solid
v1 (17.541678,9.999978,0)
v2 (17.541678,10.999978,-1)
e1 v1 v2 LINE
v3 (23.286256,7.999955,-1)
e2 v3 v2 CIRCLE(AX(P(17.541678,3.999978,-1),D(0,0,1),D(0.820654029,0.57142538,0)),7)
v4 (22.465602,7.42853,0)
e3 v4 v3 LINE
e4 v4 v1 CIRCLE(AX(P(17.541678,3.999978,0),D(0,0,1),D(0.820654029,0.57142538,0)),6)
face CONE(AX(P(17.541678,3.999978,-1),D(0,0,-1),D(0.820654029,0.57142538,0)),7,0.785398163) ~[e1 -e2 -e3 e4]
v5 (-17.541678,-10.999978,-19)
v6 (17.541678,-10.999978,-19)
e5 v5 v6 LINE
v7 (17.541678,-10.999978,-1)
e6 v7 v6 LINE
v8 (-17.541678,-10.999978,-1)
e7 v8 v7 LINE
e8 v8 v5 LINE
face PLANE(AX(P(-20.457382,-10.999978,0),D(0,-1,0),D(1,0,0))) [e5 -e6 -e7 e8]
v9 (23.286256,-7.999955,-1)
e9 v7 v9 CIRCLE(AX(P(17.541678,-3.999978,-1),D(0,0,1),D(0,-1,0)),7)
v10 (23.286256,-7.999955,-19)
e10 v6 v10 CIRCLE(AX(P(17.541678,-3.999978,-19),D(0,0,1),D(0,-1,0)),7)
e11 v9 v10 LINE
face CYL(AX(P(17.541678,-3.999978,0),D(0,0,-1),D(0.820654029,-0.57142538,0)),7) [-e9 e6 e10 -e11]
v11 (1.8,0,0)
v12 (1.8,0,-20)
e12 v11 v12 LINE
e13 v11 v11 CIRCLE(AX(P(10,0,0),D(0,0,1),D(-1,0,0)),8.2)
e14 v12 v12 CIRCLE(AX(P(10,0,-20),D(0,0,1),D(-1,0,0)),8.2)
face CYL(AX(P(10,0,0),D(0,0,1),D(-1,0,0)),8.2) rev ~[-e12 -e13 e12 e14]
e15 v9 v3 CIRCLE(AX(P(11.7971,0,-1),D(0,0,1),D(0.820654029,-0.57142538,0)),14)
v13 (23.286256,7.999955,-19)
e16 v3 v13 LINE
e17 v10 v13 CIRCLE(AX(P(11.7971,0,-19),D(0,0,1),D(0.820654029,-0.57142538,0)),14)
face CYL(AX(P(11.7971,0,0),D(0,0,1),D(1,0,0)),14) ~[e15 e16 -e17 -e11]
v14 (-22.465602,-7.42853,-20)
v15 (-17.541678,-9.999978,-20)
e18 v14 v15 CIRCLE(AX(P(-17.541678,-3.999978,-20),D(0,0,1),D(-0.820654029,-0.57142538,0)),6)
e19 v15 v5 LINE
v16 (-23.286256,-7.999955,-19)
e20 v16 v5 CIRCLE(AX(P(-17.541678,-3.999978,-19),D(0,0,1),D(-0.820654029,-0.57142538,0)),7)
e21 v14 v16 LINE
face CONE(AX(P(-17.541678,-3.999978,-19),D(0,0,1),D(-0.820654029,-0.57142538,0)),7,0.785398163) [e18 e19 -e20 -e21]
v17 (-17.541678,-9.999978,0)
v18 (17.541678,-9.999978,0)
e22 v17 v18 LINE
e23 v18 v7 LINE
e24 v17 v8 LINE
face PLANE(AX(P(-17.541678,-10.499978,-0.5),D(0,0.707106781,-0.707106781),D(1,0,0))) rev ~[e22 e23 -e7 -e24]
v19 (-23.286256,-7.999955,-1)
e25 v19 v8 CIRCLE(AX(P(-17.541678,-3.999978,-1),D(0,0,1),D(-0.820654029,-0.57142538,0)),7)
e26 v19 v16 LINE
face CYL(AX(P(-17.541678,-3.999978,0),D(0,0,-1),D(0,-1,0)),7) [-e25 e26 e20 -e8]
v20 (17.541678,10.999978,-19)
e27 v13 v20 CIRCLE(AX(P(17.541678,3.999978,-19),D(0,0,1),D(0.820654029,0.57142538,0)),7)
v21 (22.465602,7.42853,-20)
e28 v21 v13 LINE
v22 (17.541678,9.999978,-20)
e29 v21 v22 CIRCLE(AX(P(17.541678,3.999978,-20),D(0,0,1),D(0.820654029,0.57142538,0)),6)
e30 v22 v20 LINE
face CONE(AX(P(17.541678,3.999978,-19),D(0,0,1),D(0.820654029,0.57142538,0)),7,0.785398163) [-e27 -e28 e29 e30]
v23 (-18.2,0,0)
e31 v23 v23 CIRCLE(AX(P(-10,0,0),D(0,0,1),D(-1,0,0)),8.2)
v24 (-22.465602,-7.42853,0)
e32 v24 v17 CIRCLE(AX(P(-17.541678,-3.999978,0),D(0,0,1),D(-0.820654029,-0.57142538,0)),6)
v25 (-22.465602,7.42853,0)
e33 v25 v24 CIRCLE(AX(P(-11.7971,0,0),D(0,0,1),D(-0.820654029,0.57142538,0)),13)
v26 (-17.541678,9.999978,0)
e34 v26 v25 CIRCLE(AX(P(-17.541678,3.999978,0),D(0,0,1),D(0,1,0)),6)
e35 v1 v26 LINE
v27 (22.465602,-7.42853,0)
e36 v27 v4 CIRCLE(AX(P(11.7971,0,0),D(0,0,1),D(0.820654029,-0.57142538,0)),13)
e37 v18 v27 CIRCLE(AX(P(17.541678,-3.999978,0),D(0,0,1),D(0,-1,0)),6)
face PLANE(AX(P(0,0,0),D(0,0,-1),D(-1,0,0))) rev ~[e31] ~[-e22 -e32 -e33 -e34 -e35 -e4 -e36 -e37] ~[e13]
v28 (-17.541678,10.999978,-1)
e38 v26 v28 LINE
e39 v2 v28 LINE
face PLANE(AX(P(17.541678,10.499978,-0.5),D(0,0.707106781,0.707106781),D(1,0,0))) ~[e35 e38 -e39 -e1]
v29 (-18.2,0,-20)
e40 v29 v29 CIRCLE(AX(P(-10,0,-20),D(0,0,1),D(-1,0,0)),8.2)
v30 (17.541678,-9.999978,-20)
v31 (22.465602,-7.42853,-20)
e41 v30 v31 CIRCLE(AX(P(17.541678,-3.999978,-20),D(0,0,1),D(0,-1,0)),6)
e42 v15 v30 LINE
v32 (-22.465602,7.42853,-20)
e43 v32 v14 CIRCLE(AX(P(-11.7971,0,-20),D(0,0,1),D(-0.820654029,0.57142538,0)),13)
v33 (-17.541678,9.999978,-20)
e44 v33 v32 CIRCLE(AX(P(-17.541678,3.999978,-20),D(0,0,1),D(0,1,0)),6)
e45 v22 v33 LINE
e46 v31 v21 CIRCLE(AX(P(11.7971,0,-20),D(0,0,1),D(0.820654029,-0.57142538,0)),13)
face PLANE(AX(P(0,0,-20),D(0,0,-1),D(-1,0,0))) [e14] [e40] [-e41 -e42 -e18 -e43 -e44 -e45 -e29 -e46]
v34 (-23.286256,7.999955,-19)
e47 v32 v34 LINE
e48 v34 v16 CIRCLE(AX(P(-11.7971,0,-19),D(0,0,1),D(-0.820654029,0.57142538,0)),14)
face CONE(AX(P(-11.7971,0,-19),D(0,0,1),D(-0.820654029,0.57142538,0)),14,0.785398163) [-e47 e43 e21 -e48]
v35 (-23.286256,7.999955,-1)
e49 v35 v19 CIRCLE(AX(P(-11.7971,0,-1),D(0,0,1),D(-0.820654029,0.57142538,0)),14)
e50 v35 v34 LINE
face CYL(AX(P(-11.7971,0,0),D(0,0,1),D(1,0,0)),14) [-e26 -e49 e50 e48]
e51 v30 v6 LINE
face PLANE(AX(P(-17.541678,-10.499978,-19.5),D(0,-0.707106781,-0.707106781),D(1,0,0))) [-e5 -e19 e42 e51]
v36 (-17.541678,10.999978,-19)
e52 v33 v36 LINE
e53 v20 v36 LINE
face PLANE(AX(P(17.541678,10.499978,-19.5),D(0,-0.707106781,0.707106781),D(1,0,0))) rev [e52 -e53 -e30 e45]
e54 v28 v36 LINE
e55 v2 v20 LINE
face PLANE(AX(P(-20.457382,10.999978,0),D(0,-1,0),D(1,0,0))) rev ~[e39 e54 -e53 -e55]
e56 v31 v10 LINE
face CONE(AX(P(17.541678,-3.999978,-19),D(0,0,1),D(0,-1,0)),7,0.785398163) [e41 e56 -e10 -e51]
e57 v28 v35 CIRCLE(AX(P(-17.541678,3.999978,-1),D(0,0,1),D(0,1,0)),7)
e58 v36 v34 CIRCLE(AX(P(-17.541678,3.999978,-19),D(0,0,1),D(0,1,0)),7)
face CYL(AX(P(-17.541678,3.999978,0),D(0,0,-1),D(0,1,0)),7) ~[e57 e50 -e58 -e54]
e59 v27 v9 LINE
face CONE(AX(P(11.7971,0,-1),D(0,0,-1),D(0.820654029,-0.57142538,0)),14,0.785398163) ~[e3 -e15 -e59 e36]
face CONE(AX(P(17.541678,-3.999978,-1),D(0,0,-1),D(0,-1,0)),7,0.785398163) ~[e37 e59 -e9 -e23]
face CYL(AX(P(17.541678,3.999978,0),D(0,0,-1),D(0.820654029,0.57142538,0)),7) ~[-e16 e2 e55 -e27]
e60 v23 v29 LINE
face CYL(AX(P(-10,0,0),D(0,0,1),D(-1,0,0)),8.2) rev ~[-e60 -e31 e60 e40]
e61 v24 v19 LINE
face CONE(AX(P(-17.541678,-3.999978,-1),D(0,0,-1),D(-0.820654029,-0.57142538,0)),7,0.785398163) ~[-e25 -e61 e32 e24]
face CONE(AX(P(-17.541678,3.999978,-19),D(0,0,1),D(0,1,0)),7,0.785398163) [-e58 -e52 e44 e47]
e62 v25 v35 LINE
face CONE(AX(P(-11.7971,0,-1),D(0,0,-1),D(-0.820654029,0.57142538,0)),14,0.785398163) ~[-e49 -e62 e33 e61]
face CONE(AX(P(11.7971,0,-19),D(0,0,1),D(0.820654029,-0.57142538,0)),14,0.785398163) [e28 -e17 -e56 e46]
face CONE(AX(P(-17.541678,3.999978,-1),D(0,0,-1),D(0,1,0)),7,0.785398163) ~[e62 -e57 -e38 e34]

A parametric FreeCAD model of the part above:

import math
import FreeCAD as App
import Part
import Sketcher

V = App.Vector


def edges_at(feature, points):
    """Names of the edges that pass closest to the given points."""
    edges = feature.Shape.Edges
    near = lambda p: min(range(len(edges)), key=lambda i: edges[i].distToShape(Part.Vertex(*p))[0])
    return sorted({f"Edge{near(p) + 1}" for p in points})

doc = App.newDocument("Part")
params = doc.addObject("Spreadsheet::Sheet", "Params")
for row, (alias, value) in enumerate([
    ("sketch1_radius", "14 mm"),
    ("pad1_length", "20 mm"),
    ("sketch2_diameter", "16.4 mm"),
    ("pocket1_length", "21 mm"),
    ("fillet_radius", "7 mm"),
    ("chamfer_size", "1 mm"),
], start=1):
    params.set(f"A{row}", alias)
    params.set(f"B{row}", "=" + value)
    params.setAlias(f"B{row}", alias)

body = doc.addObject("PartDesign::Body", "Body")

# Sketch on XY plane
sketch1 = body.newObject("Sketcher::SketchObject", "Sketch")
sketch1.AttachmentSupport = (doc.getObject("XY_Plane"), [""])
sketch1.MapMode = "FlatFace"
sketch1.addGeometry([
    Part.ArcOfCircle(Part.Circle(V(12, 0, 0), V(0, 0, 1), 14), math.radians(-52), math.radians(52)),
    Part.LineSegment(V(20, 11, 0), V(-20, 11, 0)),
    Part.ArcOfCircle(Part.Circle(V(-12, 0, 0), V(0, 0, 1), 14), math.radians(128), math.radians(232)),
    Part.LineSegment(V(-20, -11, 0), V(20, -11, 0)),
], False)
sketch1.addConstraint([
    Sketcher.Constraint("Coincident", 0, 2, 1, 1),
    Sketcher.Constraint("Coincident", 1, 2, 2, 1),
    Sketcher.Constraint("Coincident", 2, 2, 3, 1),
    Sketcher.Constraint("Coincident", 3, 2, 0, 1),
    Sketcher.Constraint("Horizontal", 1),
    Sketcher.Constraint("Horizontal", 3),
    Sketcher.Constraint("Equal", 0, 2),
    Sketcher.Constraint("Symmetric", 0, 3, 2, 3, -1, 1),
    Sketcher.Constraint("Symmetric", 1, 2, 2, 2, -1),
    Sketcher.Constraint("Radius", 0, 14.0),
    Sketcher.Constraint("DistanceY", -1, 1, 0, 2, 11.0),
    Sketcher.Constraint("DistanceX", 1, 2, 1, 1, 40.9148),
])
sketch1.setExpression("Constraints[9]", "Params.sketch1_radius")
pad1 = body.newObject("PartDesign::Pad", "Pad")
pad1.Profile = sketch1
pad1.setExpression("Length", "Params.pad1_length")
pad1.Reversed = True

# Sketch on XY plane
sketch2 = body.newObject("Sketcher::SketchObject", "Sketch001")
sketch2.AttachmentSupport = (doc.getObject("XY_Plane"), [""])
sketch2.MapMode = "FlatFace"
sketch2.addGeometry([
    Part.Circle(V(10, 0, 0), V(0, 0, 1), 8),
    Part.Circle(V(-10, 0, 0), V(0, 0, 1), 8),
], False)
sketch2.addConstraint([
    Sketcher.Constraint("Equal", 0, 1),
    Sketcher.Constraint("Symmetric", 0, 3, 1, 3, -1, 1),
    Sketcher.Constraint("PointOnObject", 0, 3, -1),
    Sketcher.Constraint("Diameter", 0, 16.4),
    Sketcher.Constraint("DistanceX", -1, 1, 0, 3, 10.0),
])
sketch2.setExpression("Constraints[3]", "Params.sketch2_diameter")
pocket1 = body.newObject("PartDesign::Pocket", "Pocket")
pocket1.Profile = sketch2
pocket1.setExpression("Length", "Params.pocket1_length")
doc.recompute()

fillet = body.newObject("PartDesign::Fillet", "Fillet")
fillet.Base = (pocket1, edges_at(pocket1, [
    (20.457, -11, -10),
    (20.457, 11, -10),
    (-20.457, 11, -10),
    (-20.457, -11, -10),
]))
fillet.setExpression("Radius", "Params.fillet_radius")
doc.recompute()

chamfer = body.newObject("PartDesign::Chamfer", "Chamfer")
chamfer.Base = (fillet, edges_at(fillet, [
    (0, -11, 0),
    (-20.782, -10.205, 0),
    (-25.797, 0, 0),
    (-20.782, 10.205, 0),
    (0, 11, 0),
    (20.782, 10.205, 0),
    (25.797, 0, 0),
    (20.782, -10.205, 0),
    (0, -11, -20),
    (-20.782, -10.205, -20),
    (-25.797, 0, -20),
    (-20.782, 10.205, -20),
    (0, 11, -20),
    (20.782, 10.205, -20),
    (25.797, 0, -20),
    (20.782, -10.205, -20),
]))
chamfer.setExpression("Size", "Params.chamfer_size")

doc.recompute()
